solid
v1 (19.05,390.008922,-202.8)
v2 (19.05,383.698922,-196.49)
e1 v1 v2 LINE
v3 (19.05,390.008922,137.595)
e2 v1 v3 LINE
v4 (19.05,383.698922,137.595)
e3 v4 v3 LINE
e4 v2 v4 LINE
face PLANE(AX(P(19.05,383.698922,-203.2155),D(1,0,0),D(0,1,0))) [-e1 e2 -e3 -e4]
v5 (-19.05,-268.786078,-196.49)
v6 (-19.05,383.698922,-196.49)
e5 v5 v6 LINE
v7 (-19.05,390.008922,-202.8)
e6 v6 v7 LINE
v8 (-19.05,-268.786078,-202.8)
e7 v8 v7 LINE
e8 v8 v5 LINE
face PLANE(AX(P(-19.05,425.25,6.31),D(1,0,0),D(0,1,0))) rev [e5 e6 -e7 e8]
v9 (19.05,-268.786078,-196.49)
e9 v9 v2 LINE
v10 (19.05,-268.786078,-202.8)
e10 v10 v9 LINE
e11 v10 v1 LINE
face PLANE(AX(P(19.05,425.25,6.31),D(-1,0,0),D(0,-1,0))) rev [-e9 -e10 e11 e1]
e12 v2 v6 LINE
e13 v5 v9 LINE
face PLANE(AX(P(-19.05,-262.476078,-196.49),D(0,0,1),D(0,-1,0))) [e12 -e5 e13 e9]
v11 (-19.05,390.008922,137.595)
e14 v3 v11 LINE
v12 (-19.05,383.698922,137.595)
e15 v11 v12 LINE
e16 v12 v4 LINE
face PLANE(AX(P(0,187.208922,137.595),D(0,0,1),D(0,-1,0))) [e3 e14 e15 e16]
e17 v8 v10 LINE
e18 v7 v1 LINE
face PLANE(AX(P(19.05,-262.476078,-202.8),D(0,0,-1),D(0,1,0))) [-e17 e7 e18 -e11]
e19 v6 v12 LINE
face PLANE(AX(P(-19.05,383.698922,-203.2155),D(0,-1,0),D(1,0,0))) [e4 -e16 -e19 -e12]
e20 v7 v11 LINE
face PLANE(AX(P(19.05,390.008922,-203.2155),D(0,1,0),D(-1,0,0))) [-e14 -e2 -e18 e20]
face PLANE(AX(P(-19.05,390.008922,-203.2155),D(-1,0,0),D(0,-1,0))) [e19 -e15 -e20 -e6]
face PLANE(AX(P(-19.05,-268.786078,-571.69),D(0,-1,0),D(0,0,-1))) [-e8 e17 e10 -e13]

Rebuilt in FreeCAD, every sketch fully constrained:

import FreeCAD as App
import Part
import Sketcher

doc = App.newDocument("Part")
body = doc.addObject("PartDesign::Body", "Body")

sketch1 = body.newObject("Sketcher::SketchObject", "Sketch")
sketch1.AttachmentSupport = (doc.getObject("XY_Plane"), [""])
sketch1.MapMode = "FlatFace"
sketch1.addGeometry([
    Part.LineSegment(App.Vector(-19, 425, 0), App.Vector(-19, -425, 0)),
    Part.LineSegment(App.Vector(-19, -425, 0), App.Vector(19, -425, 0)),
    Part.LineSegment(App.Vector(19, -425, 0), App.Vector(19, 425, 0)),
    Part.LineSegment(App.Vector(19, 425, 0), App.Vector(-19, 425, 0)),
], False)
sketch1.addConstraint([
    Sketcher.Constraint("Coincident", 0, 2, 1, 1),
    Sketcher.Constraint("Coincident", 1, 2, 2, 1),
    Sketcher.Constraint("Coincident", 2, 2, 3, 1),
    Sketcher.Constraint("Coincident", 3, 2, 0, 1),
    Sketcher.Constraint("Vertical", 0),
    Sketcher.Constraint("Horizontal", 1),
    Sketcher.Constraint("Vertical", 2),
    Sketcher.Constraint("Horizontal", 3),
    Sketcher.Constraint("Symmetric", 0, 2, 2, 2, -1, 1),
    Sketcher.Constraint("DistanceX", 1, 1, 1, 2, 38.1),
    Sketcher.Constraint("DistanceY", 0, 2, 0, 1, 850.5),
])
pad1 = body.newObject("PartDesign::Pad", "Pad")
pad1.Profile = sketch1
pad1.Length = 6.31

sketch2 = body.newObject("Sketcher::SketchObject", "Sketch001")
sketch2.AttachmentSupport = (doc.getObject("XY_Plane"), [""])
sketch2.MapMode = "FlatFace"
sketch2.AttachmentOffset = App.Placement(App.Vector(0, 0, 6.31), App.Rotation())
sketch2.addGeometry([
    Part.LineSegment(App.Vector(-19, -419, 0), App.Vector(-19, -425, 0)),
    Part.LineSegment(App.Vector(-19, -425, 0), App.Vector(19, -425, 0)),
    Part.LineSegment(App.Vector(19, -425, 0), App.Vector(19, -419, 0)),
    Part.LineSegment(App.Vector(19, -419, 0), App.Vector(-19, -419, 0)),
], False)
sketch2.addConstraint([
    Sketcher.Constraint("Coincident", 0, 2, 1, 1),
    Sketcher.Constraint("Coincident", 1, 2, 2, 1),
    Sketcher.Constraint("Coincident", 2, 2, 3, 1),
    Sketcher.Constraint("Coincident", 3, 2, 0, 1),
    Sketcher.Constraint("Vertical", 0),
    Sketcher.Constraint("Horizontal", 1),
    Sketcher.Constraint("Vertical", 2),
    Sketcher.Constraint("Horizontal", 3),
    Sketcher.Constraint("DistanceX", 1, 1, 1, 2, 38.1),
    Sketcher.Constraint("DistanceY", 0, 2, 0, 1, 6.31),
    Sketcher.Constraint("DistanceX", 0, 2, -1, 1, 19.05),
    Sketcher.Constraint("DistanceY", 0, 2, -1, 1, 425.25),
])
pad2 = body.newObject("PartDesign::Pad", "Pad001")
pad2.Profile = sketch2
pad2.Length = 70

sketch3 = body.newObject("Sketcher::SketchObject", "Sketch002")
sketch3.AttachmentSupport = (doc.getObject("XY_Plane"), [""])
sketch3.MapMode = "FlatFace"
sketch3.AttachmentOffset = App.Placement(App.Vector(0, 0, 6.31), App.Rotation())
sketch3.addGeometry([
    Part.LineSegment(App.Vector(-19, -262, 0), App.Vector(-19, -269, 0)),
    Part.LineSegment(App.Vector(-19, -269, 0), App.Vector(19, -269, 0)),
    Part.LineSegment(App.Vector(19, -269, 0), App.Vector(19, -262, 0)),
    Part.LineSegment(App.Vector(19, -262, 0), App.Vector(-19, -262, 0)),
], False)
sketch3.addConstraint([
    Sketcher.Constraint("Coincident", 0, 2, 1, 1),
    Sketcher.Constraint("Coincident", 1, 2, 2, 1),
    Sketcher.Constraint("Coincident", 2, 2, 3, 1),
    Sketcher.Constraint("Coincident", 3, 2, 0, 1),
    Sketcher.Constraint("Vertical", 0),
    Sketcher.Constraint("Horizontal", 1),
    Sketcher.Constraint("Vertical", 2),
    Sketcher.Constraint("Horizontal", 3),
    Sketcher.Constraint("DistanceX", 1, 1, 1, 2, 38.1),
    Sketcher.Constraint("DistanceY", 0, 2, 0, 1, 6.31),
    Sketcher.Constraint("DistanceX", 0, 2, -1, 1, 19.05),
    Sketcher.Constraint("DistanceY", 0, 2, -1, 1, 268.786078),
])
pad3 = body.newObject("PartDesign::Pad", "Pad002")
pad3.Profile = sketch3
pad3.Length = 578
pad3.Reversed = True

sketch4 = body.newObject("Sketcher::SketchObject", "Sketch003")
sketch4.AttachmentSupport = (doc.getObject("XZ_Plane"), [""])
sketch4.MapMode = "FlatFace"
sketch4.AttachmentOffset = App.Placement(App.Vector(0, 0, 262.476078), App.Rotation())
sketch4.addGeometry(Part.Circle(App.Vector(0, -537, 0), App.Vector(0, 0, 1), 7), False)
sketch4.addConstraint([
    Sketcher.Constraint("PointOnObject", 0, 3, -2),
    Sketcher.Constraint("Diameter", 0, 13.871713),
    Sketcher.Constraint("DistanceY", 0, 3, -1, 1, 536.981534),
])
pocket1 = body.newObject("PartDesign::Pocket", "Pocket")
pocket1.Profile = sketch4
pocket1.Length = 7
pocket1.Reversed = True

sketch5 = body.newObject("Sketcher::SketchObject", "Sketch004")
sketch5.AttachmentSupport = (doc.getObject("XY_Plane"), [""])
sketch5.MapMode = "FlatFace"
sketch5.addGeometry([
    Part.LineSegment(App.Vector(19, 425, 0), App.Vector(19, -262, 0)),
    Part.LineSegment(App.Vector(19, -262, 0), App.Vector(-19, -262, 0)),
    Part.LineSegment(App.Vector(-19, -262, 0), App.Vector(-19, 425, 0)),
    Part.LineSegment(App.Vector(-19, 425, 0), App.Vector(19, 425, 0)),
], False)
sketch5.addConstraint([
    Sketcher.Constraint("Coincident", 0, 2, 1, 1),
    Sketcher.Constraint("Coincident", 1, 2, 2, 1),
    Sketcher.Constraint("Coincident", 2, 2, 3, 1),
    Sketcher.Constraint("Coincident", 3, 2, 0, 1),
    Sketcher.Constraint("Vertical", 0),
    Sketcher.Constraint("Horizontal", 1),
    Sketcher.Constraint("Vertical", 2),
    Sketcher.Constraint("Horizontal", 3),
    Sketcher.Constraint("DistanceX", 1, 2, 1, 1, 38.1),
    Sketcher.Constraint("DistanceX", -1, 1, 0, 2, 19.05),
    Sketcher.Constraint("DistanceY", -1, 1, 2, 2, 425.25),
    Sketcher.Constraint("DistanceY", 0, 2, 0, 1, 687.726078),
])
pocket2 = body.newObject("PartDesign::Pocket", "Pocket001")
pocket2.Profile = sketch5
pocket2.Length = 10
pocket2.Reversed = True

sketch6 = body.newObject("Sketcher::SketchObject", "Sketch005")
sketch6.AttachmentSupport = (doc.getObject("XZ_Plane"), [""])
sketch6.MapMode = "FlatFace"
sketch6.AttachmentOffset = App.Placement(App.Vector(0, 0, 262.476078), App.Rotation())
sketch6.addGeometry([
    Part.LineSegment(App.Vector(-19, -203, 0), App.Vector(-19, -196, 0)),
    Part.LineSegment(App.Vector(-19, -196, 0), App.Vector(19, -196, 0)),
    Part.LineSegment(App.Vector(19, -196, 0), App.Vector(19, -203, 0)),
    Part.LineSegment(App.Vector(19, -203, 0), App.Vector(-19, -203, 0)),
], False)
sketch6.addConstraint([
    Sketcher.Constraint("Coincident", 0, 2, 1, 1),
    Sketcher.Constraint("Coincident", 1, 2, 2, 1),
    Sketcher.Constraint("Coincident", 2, 2, 3, 1),
    Sketcher.Constraint("Coincident", 3, 2, 0, 1),
    Sketcher.Constraint("Vertical", 0),
    Sketcher.Constraint("Horizontal", 1),
    Sketcher.Constraint("Vertical", 2),
    Sketcher.Constraint("Horizontal", 3),
    Sketcher.Constraint("DistanceX", 1, 1, 1, 2, 38.1),
    Sketcher.Constraint("DistanceY", 0, 1, 0, 2, 6.31),
    Sketcher.Constraint("DistanceY", 2, 2, -1, 1, 202.8),
    Sketcher.Constraint("DistanceX", 0, 2, -1, 1, 19.05),
])

sketch7 = body.newObject("Sketcher::SketchObject", "Sketch006")
sketch7.AttachmentSupport = (doc.getObject("YZ_Plane"), [""])
sketch7.MapMode = "FlatFace"
sketch7.addGeometry([
    Part.LineSegment(App.Vector(-262, -200, 0), App.Vector(387, -200, 0)),
    Part.LineSegment(App.Vector(387, -200, 0), App.Vector(387, 138, 0)),
], False)
sketch7.addConstraint([
    Sketcher.Constraint("Coincident", 0, 2, 1, 1),
    Sketcher.Constraint("Horizontal", 0),
    Sketcher.Constraint("Vertical", 1),
    Sketcher.Constraint("DistanceX", 0, 1, 0, 2, 649.33),
    Sketcher.Constraint("DistanceY", 1, 1, 1, 2, 337.24),
    Sketcher.Constraint("DistanceY", 0, 1, -1, 1, 199.645),
    Sketcher.Constraint("DistanceX", 0, 1, -1, 1, 262.476078),
])
doc.recompute()

additivepipe = body.newObject("PartDesign::AdditivePipe", "AdditivePipe")
additivepipe.Profile = sketch6
additivepipe.Spine = (sketch7, ["Edge1", "Edge2"])
additivepipe.Transition = "Right corner"

sketch8 = body.newObject("Sketcher::SketchObject", "Sketch007")
sketch8.AttachmentSupport = (doc.getObject("YZ_Plane"), [""])
sketch8.MapMode = "FlatFace"
sketch8.AttachmentOffset = App.Placement(App.Vector(0, 0, 19.05), App.Rotation())
sketch8.addGeometry([
    Part.LineSegment(App.Vector(-444, -196, 0), App.Vector(-262, -196, 0)),
    Part.LineSegment(App.Vector(-262, -196, 0), App.Vector(-262, 91, 0)),
    Part.LineSegment(App.Vector(-262, 91, 0), App.Vector(-444, 91, 0)),
    Part.LineSegment(App.Vector(-444, 91, 0), App.Vector(-444, -196, 0)),
    Part.LineSegment(App.Vector(-262, -203, 0), App.Vector(-269, -203, 0)),
    Part.LineSegment(App.Vector(-269, -203, 0), App.Vector(-269, -572, 0)),
    Part.LineSegment(App.Vector(-269, -572, 0), App.Vector(-262, -572, 0)),
    Part.LineSegment(App.Vector(-262, -572, 0), App.Vector(-262, -203, 0)),
], False)
sketch8.addConstraint([
    Sketcher.Constraint("Coincident", 0, 2, 1, 1),
    Sketcher.Constraint("Coincident", 1, 2, 2, 1),
    Sketcher.Constraint("Coincident", 2, 2, 3, 1),
    Sketcher.Constraint("Coincident", 3, 2, 0, 1),
    Sketcher.Constraint("Coincident", 4, 2, 5, 1),
    Sketcher.Constraint("Coincident", 5, 2, 6, 1),
    Sketcher.Constraint("Coincident", 6, 2, 7, 1),
    Sketcher.Constraint("Coincident", 7, 2, 4, 1),
    Sketcher.Constraint("Horizontal", 0),
    Sketcher.Constraint("Vertical", 1),
    Sketcher.Constraint("Horizontal", 2),
    Sketcher.Constraint("Vertical", 3),
    Sketcher.Constraint("Horizontal", 4),
    Sketcher.Constraint("Vertical", 5),
    Sketcher.Constraint("Horizontal", 6),
    Sketcher.Constraint("Vertical", 7),
    Sketcher.Constraint("Vertical", 1, 2, 6, 2),
    Sketcher.Constraint("DistanceX", 4, 2, 4, 1, 6.31),
    Sketcher.Constraint("DistanceY", 5, 2, 5, 1, 368.89),
    Sketcher.Constraint("DistanceY", 4, 2, -1, 1, 202.8),
    Sketcher.Constraint("DistanceY", 5, 2, 0, 2, 375.2),
    Sketcher.Constraint("DistanceY", 1, 1, 1, 2, 287.324601),
    Sketcher.Constraint("DistanceX", 0, 1, 0, 2, 181.831596),
    Sketcher.Constraint("DistanceX", 0, 2, -1, 1, 262.476078),
])
pocket3 = body.newObject("PartDesign::Pocket", "Pocket002")
pocket3.Profile = sketch8
pocket3.Length = 147

doc.recompute()
